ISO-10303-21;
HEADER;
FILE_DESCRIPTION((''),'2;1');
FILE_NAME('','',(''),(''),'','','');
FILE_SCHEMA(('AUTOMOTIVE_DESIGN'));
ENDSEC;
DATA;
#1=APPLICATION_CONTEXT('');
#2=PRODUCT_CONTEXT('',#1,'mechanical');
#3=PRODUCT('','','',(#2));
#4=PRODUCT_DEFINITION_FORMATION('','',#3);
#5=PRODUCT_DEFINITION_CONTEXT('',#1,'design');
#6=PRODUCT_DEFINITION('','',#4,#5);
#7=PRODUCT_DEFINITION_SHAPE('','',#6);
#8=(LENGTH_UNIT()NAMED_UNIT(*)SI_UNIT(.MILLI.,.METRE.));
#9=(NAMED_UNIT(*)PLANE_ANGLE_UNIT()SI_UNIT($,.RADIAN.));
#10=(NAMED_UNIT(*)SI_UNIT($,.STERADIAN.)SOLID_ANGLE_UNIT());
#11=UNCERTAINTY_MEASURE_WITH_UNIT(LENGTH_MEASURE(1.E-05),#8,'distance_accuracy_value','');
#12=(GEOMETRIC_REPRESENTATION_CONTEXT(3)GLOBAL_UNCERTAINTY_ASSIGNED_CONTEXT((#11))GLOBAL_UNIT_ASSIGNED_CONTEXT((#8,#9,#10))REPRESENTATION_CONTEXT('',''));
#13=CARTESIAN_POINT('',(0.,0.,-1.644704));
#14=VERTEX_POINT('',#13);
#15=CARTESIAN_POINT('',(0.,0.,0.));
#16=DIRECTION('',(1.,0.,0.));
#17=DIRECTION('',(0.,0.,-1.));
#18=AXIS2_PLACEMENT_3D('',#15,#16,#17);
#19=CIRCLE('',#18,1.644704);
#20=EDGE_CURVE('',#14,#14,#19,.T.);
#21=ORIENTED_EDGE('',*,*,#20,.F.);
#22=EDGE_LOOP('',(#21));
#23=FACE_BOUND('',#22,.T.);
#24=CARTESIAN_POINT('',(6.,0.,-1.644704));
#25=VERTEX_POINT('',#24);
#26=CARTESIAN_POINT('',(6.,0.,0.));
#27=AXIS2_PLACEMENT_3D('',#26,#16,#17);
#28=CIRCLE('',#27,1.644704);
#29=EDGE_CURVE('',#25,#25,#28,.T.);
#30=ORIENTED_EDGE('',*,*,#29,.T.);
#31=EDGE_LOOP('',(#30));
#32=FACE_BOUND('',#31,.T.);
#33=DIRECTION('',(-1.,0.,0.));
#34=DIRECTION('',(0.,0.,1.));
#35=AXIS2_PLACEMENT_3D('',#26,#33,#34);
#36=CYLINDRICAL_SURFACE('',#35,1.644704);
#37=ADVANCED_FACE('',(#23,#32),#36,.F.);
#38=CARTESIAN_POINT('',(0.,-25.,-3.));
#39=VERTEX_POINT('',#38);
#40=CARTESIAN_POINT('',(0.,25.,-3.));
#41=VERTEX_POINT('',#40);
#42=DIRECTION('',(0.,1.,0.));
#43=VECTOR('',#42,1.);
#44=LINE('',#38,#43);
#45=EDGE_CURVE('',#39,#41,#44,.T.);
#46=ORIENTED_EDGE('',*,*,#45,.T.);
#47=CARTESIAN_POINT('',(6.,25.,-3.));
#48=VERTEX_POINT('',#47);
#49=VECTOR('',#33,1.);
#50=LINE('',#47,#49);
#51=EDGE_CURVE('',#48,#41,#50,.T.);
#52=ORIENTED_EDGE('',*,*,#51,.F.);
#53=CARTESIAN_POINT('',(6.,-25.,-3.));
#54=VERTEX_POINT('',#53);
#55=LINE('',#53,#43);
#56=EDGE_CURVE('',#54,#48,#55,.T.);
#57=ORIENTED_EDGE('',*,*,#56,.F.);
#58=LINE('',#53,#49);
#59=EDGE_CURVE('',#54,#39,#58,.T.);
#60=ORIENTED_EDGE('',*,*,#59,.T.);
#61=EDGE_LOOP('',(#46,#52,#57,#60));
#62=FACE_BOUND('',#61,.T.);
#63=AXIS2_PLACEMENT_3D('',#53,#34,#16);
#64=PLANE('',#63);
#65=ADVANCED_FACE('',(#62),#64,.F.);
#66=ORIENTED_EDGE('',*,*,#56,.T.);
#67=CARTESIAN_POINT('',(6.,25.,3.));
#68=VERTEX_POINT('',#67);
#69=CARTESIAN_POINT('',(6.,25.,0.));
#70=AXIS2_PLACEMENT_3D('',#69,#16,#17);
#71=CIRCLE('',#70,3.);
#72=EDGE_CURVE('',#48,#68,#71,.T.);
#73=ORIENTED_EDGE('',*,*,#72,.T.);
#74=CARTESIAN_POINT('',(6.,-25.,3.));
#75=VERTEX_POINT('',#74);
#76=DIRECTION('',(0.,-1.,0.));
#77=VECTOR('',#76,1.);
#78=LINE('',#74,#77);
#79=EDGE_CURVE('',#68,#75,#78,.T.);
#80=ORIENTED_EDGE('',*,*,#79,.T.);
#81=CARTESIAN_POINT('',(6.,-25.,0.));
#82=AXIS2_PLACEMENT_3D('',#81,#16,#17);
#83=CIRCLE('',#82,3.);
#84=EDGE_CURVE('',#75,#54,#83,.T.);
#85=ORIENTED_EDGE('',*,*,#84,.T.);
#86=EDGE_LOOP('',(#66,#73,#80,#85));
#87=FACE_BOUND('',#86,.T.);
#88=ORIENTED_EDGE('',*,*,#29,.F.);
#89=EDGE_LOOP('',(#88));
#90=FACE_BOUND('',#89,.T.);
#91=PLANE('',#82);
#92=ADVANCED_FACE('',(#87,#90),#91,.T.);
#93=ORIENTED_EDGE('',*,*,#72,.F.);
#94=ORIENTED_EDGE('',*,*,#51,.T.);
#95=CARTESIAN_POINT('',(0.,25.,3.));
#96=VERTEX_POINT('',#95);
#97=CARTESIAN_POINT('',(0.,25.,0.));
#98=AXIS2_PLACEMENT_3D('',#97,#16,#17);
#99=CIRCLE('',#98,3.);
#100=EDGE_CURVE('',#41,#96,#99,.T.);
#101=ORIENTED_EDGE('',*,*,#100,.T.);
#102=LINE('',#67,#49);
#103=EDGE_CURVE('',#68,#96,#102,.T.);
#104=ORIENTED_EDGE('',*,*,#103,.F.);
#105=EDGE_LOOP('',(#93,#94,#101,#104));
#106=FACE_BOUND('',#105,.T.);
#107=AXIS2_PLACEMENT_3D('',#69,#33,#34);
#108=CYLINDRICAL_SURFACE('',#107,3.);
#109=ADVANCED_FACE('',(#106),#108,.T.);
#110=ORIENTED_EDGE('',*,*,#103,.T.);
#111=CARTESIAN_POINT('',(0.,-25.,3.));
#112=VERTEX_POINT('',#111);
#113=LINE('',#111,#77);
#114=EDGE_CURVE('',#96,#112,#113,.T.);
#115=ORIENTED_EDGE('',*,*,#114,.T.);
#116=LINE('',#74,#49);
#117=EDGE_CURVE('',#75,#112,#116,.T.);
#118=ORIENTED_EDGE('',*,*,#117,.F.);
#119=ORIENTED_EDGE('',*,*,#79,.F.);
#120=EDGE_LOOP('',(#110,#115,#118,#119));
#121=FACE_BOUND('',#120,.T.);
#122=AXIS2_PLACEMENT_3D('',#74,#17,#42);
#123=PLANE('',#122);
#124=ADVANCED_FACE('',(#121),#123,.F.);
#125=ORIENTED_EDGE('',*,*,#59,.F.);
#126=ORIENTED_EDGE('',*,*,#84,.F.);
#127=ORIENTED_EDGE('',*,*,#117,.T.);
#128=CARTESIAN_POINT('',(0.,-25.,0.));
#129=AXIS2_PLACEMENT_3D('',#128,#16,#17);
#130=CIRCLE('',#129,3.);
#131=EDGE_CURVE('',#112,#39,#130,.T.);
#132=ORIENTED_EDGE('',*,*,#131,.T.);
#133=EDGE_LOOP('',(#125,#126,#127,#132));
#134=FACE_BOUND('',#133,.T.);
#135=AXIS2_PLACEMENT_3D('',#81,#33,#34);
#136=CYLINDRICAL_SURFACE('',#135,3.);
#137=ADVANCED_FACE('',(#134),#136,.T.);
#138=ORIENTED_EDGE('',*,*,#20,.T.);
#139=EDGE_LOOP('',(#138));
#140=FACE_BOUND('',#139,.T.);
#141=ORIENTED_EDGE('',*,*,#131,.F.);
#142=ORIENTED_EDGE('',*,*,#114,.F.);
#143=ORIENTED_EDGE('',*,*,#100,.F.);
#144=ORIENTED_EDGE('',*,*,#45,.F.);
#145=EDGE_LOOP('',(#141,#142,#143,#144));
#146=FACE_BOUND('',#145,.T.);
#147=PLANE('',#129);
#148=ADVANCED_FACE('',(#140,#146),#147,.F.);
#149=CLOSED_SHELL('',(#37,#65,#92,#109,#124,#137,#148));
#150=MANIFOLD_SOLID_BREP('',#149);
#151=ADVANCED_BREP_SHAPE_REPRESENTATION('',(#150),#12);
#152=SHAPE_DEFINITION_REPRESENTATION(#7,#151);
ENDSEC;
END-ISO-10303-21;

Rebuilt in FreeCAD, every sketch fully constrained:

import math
import FreeCAD as App
import Part
import Sketcher

doc = App.newDocument("Part")
body = doc.addObject("PartDesign::Body", "Body")

# Sketch on YZ plane
sketch1 = doc.addObject("Sketcher::SketchObject", "Sketch")
body.addObject(sketch1)
sketch1.AttachmentSupport = (doc.YZ_Plane, [""])
sketch1.MapMode = "FlatFace"
sketch1.addGeometry([
    Part.LineSegment(App.Vector(25, 3, 0), App.Vector(-25, 3, 0)),  # 0
    Part.ArcOfCircle(Part.Circle(App.Vector(-25, 0, 0), App.Vector(0, 0, 1), 3), math.radians(90), math.radians(270)),  # 1
    Part.LineSegment(App.Vector(-25, -3, 0), App.Vector(25, -3, 0)),  # 2
    Part.ArcOfCircle(Part.Circle(App.Vector(25, 0, 0), App.Vector(0, 0, 1), 3), math.radians(-90), math.radians(90)),  # 3
    Part.Circle(App.Vector(0, 0, 0), App.Vector(0, 0, 1), 1.644704),  # 4
], False)
sketch1.addConstraint([
    Sketcher.Constraint("Tangent", 0, 2, 1, 1),
    Sketcher.Constraint("Tangent", 1, 2, 2, 1),
    Sketcher.Constraint("Tangent", 2, 2, 3, 1),
    Sketcher.Constraint("Tangent", 3, 2, 0, 1),
    Sketcher.Constraint("Horizontal", 0),
    Sketcher.Constraint("Horizontal", 2),
    Sketcher.Constraint("Coincident", 4, 3, -1, 1),
    Sketcher.Constraint("Symmetric", 1, 3, 3, 3, -1, 1),
    Sketcher.Constraint("Radius", 1, 3.0),
    Sketcher.Constraint("DistanceX", 0, 2, 0, 1, 50.0),
    Sketcher.Constraint("Diameter", 4, 3.289409),
])
pad1 = doc.addObject("PartDesign::Pad", "Pad")
body.addObject(pad1)
pad1.Profile = sketch1
pad1.Length = 6

doc.recompute()
